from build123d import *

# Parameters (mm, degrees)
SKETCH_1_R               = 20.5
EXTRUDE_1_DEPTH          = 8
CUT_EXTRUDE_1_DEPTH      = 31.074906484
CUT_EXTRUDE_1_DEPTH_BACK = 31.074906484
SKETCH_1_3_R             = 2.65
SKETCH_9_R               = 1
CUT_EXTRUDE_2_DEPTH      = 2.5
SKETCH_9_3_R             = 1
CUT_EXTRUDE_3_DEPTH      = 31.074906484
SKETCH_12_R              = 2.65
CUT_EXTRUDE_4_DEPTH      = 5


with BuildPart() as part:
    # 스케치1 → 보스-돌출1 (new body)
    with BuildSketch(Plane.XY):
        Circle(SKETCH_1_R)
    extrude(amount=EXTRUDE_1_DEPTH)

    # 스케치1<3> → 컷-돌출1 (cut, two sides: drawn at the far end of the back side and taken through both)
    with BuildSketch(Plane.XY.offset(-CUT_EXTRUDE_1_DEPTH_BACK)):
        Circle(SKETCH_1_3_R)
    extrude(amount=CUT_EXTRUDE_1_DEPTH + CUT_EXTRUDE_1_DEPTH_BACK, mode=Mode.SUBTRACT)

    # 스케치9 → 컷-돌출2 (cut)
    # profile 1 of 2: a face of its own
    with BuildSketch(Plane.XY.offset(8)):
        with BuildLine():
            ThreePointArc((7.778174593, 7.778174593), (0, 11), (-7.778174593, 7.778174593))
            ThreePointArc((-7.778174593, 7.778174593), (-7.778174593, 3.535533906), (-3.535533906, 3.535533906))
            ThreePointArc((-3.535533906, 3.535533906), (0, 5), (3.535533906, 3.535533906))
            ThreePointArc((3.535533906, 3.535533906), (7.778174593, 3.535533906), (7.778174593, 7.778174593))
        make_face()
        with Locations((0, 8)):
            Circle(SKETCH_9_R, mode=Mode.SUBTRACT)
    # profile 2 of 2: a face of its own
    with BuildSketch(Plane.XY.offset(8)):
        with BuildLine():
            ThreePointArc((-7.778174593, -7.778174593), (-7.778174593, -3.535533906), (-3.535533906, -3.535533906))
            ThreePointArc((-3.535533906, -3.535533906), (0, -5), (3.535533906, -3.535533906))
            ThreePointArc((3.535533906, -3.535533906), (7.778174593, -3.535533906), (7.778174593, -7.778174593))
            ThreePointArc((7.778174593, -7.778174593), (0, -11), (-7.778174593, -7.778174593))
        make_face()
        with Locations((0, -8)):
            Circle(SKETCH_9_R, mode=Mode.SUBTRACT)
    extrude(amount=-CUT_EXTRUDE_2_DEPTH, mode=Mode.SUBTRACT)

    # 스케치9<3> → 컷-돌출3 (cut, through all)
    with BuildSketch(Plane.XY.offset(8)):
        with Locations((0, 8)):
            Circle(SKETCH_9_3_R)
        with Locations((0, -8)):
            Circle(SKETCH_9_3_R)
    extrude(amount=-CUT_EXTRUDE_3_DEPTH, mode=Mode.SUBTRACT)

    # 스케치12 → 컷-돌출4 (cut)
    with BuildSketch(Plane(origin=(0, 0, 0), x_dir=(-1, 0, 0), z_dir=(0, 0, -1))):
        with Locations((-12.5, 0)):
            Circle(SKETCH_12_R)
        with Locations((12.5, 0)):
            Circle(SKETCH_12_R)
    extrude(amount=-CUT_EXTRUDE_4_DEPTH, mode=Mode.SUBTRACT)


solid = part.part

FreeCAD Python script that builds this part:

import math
import FreeCAD as App
import Part
import Sketcher
from FreeCAD import Vector

doc = App.newDocument("Part")
body = doc.addObject("PartDesign::Body", "Body")

# Sketch on XY plane
sketch1 = body.newObject("Sketcher::SketchObject", "Sketch")
sketch1.AttachmentSupport = (doc.getObject("XY_Plane"), [""])
sketch1.MapMode = "FlatFace"
sketch1.addGeometry(Part.Circle(Vector(0, 0, 0), Vector(0, 0, 1), 20), False)
sketch1.addConstraint([
    Sketcher.Constraint("Coincident", 0, 3, -1, 1),
    Sketcher.Constraint("Diameter", 0, 41.0),
])
pad1 = body.newObject("PartDesign::Pad", "Pad")
pad1.Profile = sketch1
pad1.Length = 8

# Sketch on XY plane
sketch2 = body.newObject("Sketcher::SketchObject", "Sketch001")
sketch2.AttachmentSupport = (doc.getObject("XY_Plane"), [""])
sketch2.MapMode = "FlatFace"
sketch2.addGeometry(Part.Circle(Vector(0, 0, 0), Vector(0, 0, 1), 2.6), False)
sketch2.addConstraint([
    Sketcher.Constraint("Coincident", 0, 3, -1, 1),
    Sketcher.Constraint("Diameter", 0, 5.3),
])
pocket1 = body.newObject("PartDesign::Pocket", "Pocket")
pocket1.Profile = sketch2
pocket1.Type = "ThroughAll"
pocket1.Midplane = True

# Sketch on XY plane
sketch3 = body.newObject("Sketcher::SketchObject", "Sketch002")
sketch3.AttachmentSupport = (doc.getObject("XY_Plane"), [""])
sketch3.MapMode = "FlatFace"
sketch3.AttachmentOffset = App.Placement(Vector(0, 0, 8), App.Rotation())
sketch3.addGeometry([
    Part.ArcOfCircle(Part.Circle(Vector(0, 0, 0), Vector(0, 0, 1), 11), math.radians(45), math.radians(135)),  # 0
    Part.ArcOfCircle(Part.Circle(Vector(-5.7, 5.7, 0), Vector(0, 0, 1), 3), math.radians(135), math.radians(315)),  # 1
    Part.ArcOfCircle(Part.Circle(Vector(0, 0, 0), Vector(0, 0, 1), 5), math.radians(45), math.radians(135)),  # 2
    Part.ArcOfCircle(Part.Circle(Vector(5.7, 5.7, 0), Vector(0, 0, 1), 3), math.radians(-135), math.radians(45)),  # 3
    Part.Circle(Vector(0, 8, 0), Vector(0, 0, 1), 1),  # 4
    Part.ArcOfCircle(Part.Circle(Vector(-5.7, -5.7, 0), Vector(0, 0, 1), 3), math.radians(45), math.radians(225)),  # 5
    Part.ArcOfCircle(Part.Circle(Vector(0, 0, 0), Vector(0, 0, 1), 11), math.radians(-135), math.radians(-45)),  # 6
    Part.ArcOfCircle(Part.Circle(Vector(5.7, -5.7, 0), Vector(0, 0, 1), 3), math.radians(-45), math.radians(135)),  # 7
    Part.ArcOfCircle(Part.Circle(Vector(0, 0, 0), Vector(0, 0, 1), 5), math.radians(-135), math.radians(-45)),  # 8
    Part.Circle(Vector(0, -8, 0), Vector(0, 0, 1), 1),  # 9
], False)
sketch3.addConstraint([
    Sketcher.Constraint("Tangent", 0, 2, 1, 1),
    Sketcher.Constraint("Tangent", 1, 2, 2, 2),
    Sketcher.Constraint("Tangent", 2, 1, 3, 1),
    Sketcher.Constraint("Tangent", 3, 2, 0, 1),
    Sketcher.Constraint("Tangent", 5, 2, 6, 1),
    Sketcher.Constraint("Tangent", 6, 2, 7, 1),
    Sketcher.Constraint("Tangent", 7, 2, 8, 2),
    Sketcher.Constraint("Tangent", 8, 1, 5, 1),
    Sketcher.Constraint("Coincident", 0, 3, -1, 1),
    Sketcher.Constraint("Coincident", 2, 3, -1, 1),
    Sketcher.Constraint("Coincident", 6, 3, -1, 1),
    Sketcher.Constraint("Coincident", 8, 3, -1, 1),
    Sketcher.Constraint("Equal", 3, 5),
    Sketcher.Constraint("Equal", 0, 6),
    Sketcher.Constraint("Equal", 4, 9),
    Sketcher.Constraint("Symmetric", 4, 3, 9, 3, -1, 1),
    Sketcher.Constraint("PointOnObject", 4, 3, -2),
    Sketcher.Constraint("Horizontal", 1, 3, 3, 3),
    Sketcher.Constraint("Horizontal", 5, 3, 7, 3),
    Sketcher.Constraint("Vertical", 1, 3, 5, 3),
    Sketcher.Constraint("Diameter", 4, 2.0),
    Sketcher.Constraint("Radius", 0, 11.0),
    Sketcher.Constraint("Radius", 1, 3.0),
    Sketcher.Constraint("DistanceY", -1, 1, 4, 3, 8.0),
    Sketcher.Constraint("DistanceX", 1, 3, 3, 3, 11.313709),
])
pocket2 = body.newObject("PartDesign::Pocket", "Pocket001")
pocket2.Profile = sketch3
pocket2.Length = 2.5

# Sketch on XY plane
sketch4 = body.newObject("Sketcher::SketchObject", "Sketch003")
sketch4.AttachmentSupport = (doc.getObject("XY_Plane"), [""])
sketch4.MapMode = "FlatFace"
sketch4.AttachmentOffset = App.Placement(Vector(0, 0, 8), App.Rotation())
sketch4.addGeometry([
    Part.Circle(Vector(0, 8, 0), Vector(0, 0, 1), 1),
    Part.Circle(Vector(0, -8, 0), Vector(0, 0, 1), 1),
], False)
sketch4.addConstraint([
    Sketcher.Constraint("Equal", 0, 1),
    Sketcher.Constraint("Symmetric", 0, 3, 1, 3, -1, 1),
    Sketcher.Constraint("PointOnObject", 0, 3, -2),
    Sketcher.Constraint("Diameter", 0, 2.0),
    Sketcher.Constraint("DistanceY", -1, 1, 0, 3, 8.0),
])
pocket3 = body.newObject("PartDesign::Pocket", "Pocket002")
pocket3.Profile = sketch4
pocket3.Type = "ThroughAll"

# Sketch on XY plane
sketch5 = body.newObject("Sketcher::SketchObject", "Sketch004")
sketch5.AttachmentSupport = (doc.getObject("XY_Plane"), [""])
sketch5.MapMode = "FlatFace"
sketch5.addGeometry([
    Part.Circle(Vector(12.5, 0, 0), Vector(0, 0, 1), 2.6),
    Part.Circle(Vector(-12.5, 0, 0), Vector(0, 0, 1), 2.6),
], False)
sketch5.addConstraint([
    Sketcher.Constraint("Equal", 0, 1),
    Sketcher.Constraint("Symmetric", 0, 3, 1, 3, -1, 1),
    Sketcher.Constraint("PointOnObject", 0, 3, -1),
    Sketcher.Constraint("Diameter", 0, 5.3),
    Sketcher.Constraint("DistanceX", 1, 3, 0, 3, 25.0),
])
pocket4 = body.newObject("PartDesign::Pocket", "Pocket003")
pocket4.Profile = sketch5
pocket4.Length = 5
pocket4.Reversed = True

doc.recompute()
